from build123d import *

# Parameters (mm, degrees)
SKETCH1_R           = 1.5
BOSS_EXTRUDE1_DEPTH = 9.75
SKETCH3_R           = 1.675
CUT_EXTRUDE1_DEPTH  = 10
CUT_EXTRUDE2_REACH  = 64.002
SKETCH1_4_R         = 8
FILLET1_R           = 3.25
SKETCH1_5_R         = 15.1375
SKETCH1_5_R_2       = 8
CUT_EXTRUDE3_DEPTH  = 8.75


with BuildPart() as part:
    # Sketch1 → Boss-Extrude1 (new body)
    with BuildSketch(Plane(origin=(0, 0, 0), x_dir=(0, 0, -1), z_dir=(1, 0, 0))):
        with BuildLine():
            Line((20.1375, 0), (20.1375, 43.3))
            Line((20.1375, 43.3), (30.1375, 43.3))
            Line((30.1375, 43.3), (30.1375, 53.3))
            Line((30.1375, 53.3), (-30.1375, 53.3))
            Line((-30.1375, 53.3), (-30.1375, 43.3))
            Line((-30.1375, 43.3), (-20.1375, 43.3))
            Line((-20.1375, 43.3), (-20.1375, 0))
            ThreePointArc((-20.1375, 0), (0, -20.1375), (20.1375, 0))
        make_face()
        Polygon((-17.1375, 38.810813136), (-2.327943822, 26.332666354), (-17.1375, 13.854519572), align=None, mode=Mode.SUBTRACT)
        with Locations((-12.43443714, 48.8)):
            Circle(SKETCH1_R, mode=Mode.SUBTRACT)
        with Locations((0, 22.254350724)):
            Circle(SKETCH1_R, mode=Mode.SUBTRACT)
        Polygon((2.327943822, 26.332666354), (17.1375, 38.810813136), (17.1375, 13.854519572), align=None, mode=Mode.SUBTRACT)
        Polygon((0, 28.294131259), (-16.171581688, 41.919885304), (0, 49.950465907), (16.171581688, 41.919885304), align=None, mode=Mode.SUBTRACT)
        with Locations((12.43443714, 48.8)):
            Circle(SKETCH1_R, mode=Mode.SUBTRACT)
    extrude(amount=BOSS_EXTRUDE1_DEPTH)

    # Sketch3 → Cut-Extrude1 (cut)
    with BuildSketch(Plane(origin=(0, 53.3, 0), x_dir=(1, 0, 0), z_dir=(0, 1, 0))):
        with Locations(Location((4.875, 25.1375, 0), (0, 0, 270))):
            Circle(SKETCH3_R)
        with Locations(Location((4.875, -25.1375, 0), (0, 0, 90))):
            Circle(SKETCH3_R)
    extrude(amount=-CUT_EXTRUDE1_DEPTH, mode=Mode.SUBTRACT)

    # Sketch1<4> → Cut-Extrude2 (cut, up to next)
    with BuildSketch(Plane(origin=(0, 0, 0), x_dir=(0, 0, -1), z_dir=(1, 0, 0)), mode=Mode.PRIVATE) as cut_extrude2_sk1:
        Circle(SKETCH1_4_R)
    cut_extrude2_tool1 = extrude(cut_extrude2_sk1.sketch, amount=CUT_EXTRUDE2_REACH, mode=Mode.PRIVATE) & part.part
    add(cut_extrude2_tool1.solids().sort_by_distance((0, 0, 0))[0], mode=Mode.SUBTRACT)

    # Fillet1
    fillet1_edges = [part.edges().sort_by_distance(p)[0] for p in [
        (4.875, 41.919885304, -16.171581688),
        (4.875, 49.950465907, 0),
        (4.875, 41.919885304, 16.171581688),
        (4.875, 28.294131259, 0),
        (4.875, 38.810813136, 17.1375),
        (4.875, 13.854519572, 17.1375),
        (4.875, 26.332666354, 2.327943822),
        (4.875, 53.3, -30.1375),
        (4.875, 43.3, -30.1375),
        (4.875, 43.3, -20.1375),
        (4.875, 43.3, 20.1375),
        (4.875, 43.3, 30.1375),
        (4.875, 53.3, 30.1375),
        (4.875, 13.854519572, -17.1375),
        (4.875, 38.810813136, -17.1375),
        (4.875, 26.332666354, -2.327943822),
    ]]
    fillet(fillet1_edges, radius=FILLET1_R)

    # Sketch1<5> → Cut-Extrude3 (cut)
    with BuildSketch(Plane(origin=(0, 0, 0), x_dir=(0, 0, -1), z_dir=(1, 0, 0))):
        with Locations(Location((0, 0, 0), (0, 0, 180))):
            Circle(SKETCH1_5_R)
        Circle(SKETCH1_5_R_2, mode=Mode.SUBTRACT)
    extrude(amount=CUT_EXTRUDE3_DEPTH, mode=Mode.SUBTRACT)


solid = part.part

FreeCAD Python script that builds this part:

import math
import FreeCAD as App
import Part
import Sketcher
from FreeCAD import Vector
Q = App.Units.Quantity


def edges_at(feature, points):
    """Names of the edges that pass closest to the given points."""
    edges = feature.Shape.Edges
    near = lambda p: min(range(len(edges)), key=lambda i: edges[i].distToShape(Part.Vertex(*p))[0])
    return sorted({f"Edge{near(p) + 1}" for p in points})

doc = App.newDocument("Part")
params = doc.addObject("Spreadsheet::Sheet", "Params")
for row, (alias, value) in enumerate([
    ("sketch1_diameter", "3 mm"),
    ("sketch1_width", "10 mm"),
    ("sketch1_width2", "43.3 mm"),
    ("pad1_length", "9.75 mm"),
    ("sketch2_diameter", "3.35 mm"),
    ("pocket1_length", "10 mm"),
    ("sketch3_diameter", "16 mm"),
    ("fillet_radius", "3.25 mm"),
    ("sketch4_diameter", "16 mm"),
    ("pocket3_length", "8.75 mm"),
], start=1):
    params.set(f"A{row}", alias)
    params.set(f"B{row}", "=" + value)
    params.setAlias(f"B{row}", alias)

body = doc.addObject("PartDesign::Body", "Body")

# Sketch on YZ plane
sketch1 = doc.addObject("Sketcher::SketchObject", "Sketch")
body.addObject(sketch1)
sketch1.AttachmentSupport = (doc.YZ_Plane, [""])
sketch1.MapMode = "FlatFace"
sketch1.addGeometry(Part.LineSegment(Vector(0, -20.1, 0), Vector(43.3, -20.1, 0)), False)
sketch1.addGeometry(Part.LineSegment(Vector(43.3, -20.1, 0), Vector(43.3, -30.1, 0)), False)
sketch1.addGeometry(Part.LineSegment(Vector(43.3, -30.1, 0), Vector(53.3, -30.1, 0)), False)
sketch1.addGeometry(Part.LineSegment(Vector(53.3, -30.1, 0), Vector(53.3, 30.1, 0)), False)
sketch1.addGeometry(Part.LineSegment(Vector(53.3, 30.1, 0), Vector(43.3, 30.1, 0)), False)
sketch1.addGeometry(Part.LineSegment(Vector(43.3, 30.1, 0), Vector(43.3, 20.1, 0)), False)
sketch1.addGeometry(Part.LineSegment(Vector(43.3, 20.1, 0), Vector(0, 20.1, 0)), False)
sketch1.addGeometry(Part.ArcOfCircle(Part.Circle(Vector(0, 0, 0), Vector(0, 0, 1), 20.1), math.radians(90), math.radians(270)), False)
sketch1.addGeometry(Part.LineSegment(Vector(13.9, 17.1, 0), Vector(38.8, 17.1, 0)), False)
sketch1.addGeometry(Part.LineSegment(Vector(38.8, 17.1, 0), Vector(26.3, 2.3, 0)), False)
sketch1.addGeometry(Part.LineSegment(Vector(26.3, 2.3, 0), Vector(13.9, 17.1, 0)), False)
sketch1.addGeometry(Part.Circle(Vector(22.3, 0, 0), Vector(0, 0, 1), 1.5), False)
sketch1.addGeometry(Part.LineSegment(Vector(13.9, -17.1, 0), Vector(26.3, -2.3, 0)), False)
sketch1.addGeometry(Part.LineSegment(Vector(26.3, -2.3, 0), Vector(38.8, -17.1, 0)), False)
sketch1.addGeometry(Part.LineSegment(Vector(38.8, -17.1, 0), Vector(13.9, -17.1, 0)), False)
sketch1.addGeometry(Part.Circle(Vector(48.8, 12.4, 0), Vector(0, 0, 1), 1.5), False)
sketch1.addGeometry(Part.LineSegment(Vector(41.9, -16.2, 0), Vector(28.3, 0, 0)), False)
sketch1.addGeometry(Part.LineSegment(Vector(28.3, 0, 0), Vector(41.9, 16.2, 0)), False)
sketch1.addGeometry(Part.LineSegment(Vector(41.9, 16.2, 0), Vector(50, 0, 0)), False)
sketch1.addGeometry(Part.LineSegment(Vector(50, 0, 0), Vector(41.9, -16.2, 0)), False)
sketch1.addGeometry(Part.Circle(Vector(48.8, -12.4, 0), Vector(0, 0, 1), 1.5), False)
sketch1.addConstraint(Sketcher.Constraint("Coincident", 0, 2, 1, 1))
sketch1.addConstraint(Sketcher.Constraint("Coincident", 1, 2, 2, 1))
sketch1.addConstraint(Sketcher.Constraint("Coincident", 2, 2, 3, 1))
sketch1.addConstraint(Sketcher.Constraint("Coincident", 3, 2, 4, 1))
sketch1.addConstraint(Sketcher.Constraint("Coincident", 4, 2, 5, 1))
sketch1.addConstraint(Sketcher.Constraint("Coincident", 5, 2, 6, 1))
sketch1.addConstraint(Sketcher.Constraint("Tangent", 6, 2, 7, 1))
sketch1.addConstraint(Sketcher.Constraint("Tangent", 7, 2, 0, 1))
sketch1.addConstraint(Sketcher.Constraint("Coincident", 8, 2, 9, 1))
sketch1.addConstraint(Sketcher.Constraint("Coincident", 9, 2, 10, 1))
sketch1.addConstraint(Sketcher.Constraint("Coincident", 10, 2, 8, 1))
sketch1.addConstraint(Sketcher.Constraint("Coincident", 12, 2, 13, 1))
sketch1.addConstraint(Sketcher.Constraint("Coincident", 13, 2, 14, 1))
sketch1.addConstraint(Sketcher.Constraint("Coincident", 14, 2, 12, 1))
sketch1.addConstraint(Sketcher.Constraint("Coincident", 16, 2, 17, 1))
sketch1.addConstraint(Sketcher.Constraint("Coincident", 17, 2, 18, 1))
sketch1.addConstraint(Sketcher.Constraint("Coincident", 18, 2, 19, 1))
sketch1.addConstraint(Sketcher.Constraint("Coincident", 19, 2, 16, 1))
sketch1.addConstraint(Sketcher.Constraint("Horizontal", 0))
sketch1.addConstraint(Sketcher.Constraint("Vertical", 1))
sketch1.addConstraint(Sketcher.Constraint("Horizontal", 2))
sketch1.addConstraint(Sketcher.Constraint("Vertical", 3))
sketch1.addConstraint(Sketcher.Constraint("Horizontal", 4))
sketch1.addConstraint(Sketcher.Constraint("Vertical", 5))
sketch1.addConstraint(Sketcher.Constraint("Horizontal", 6))
sketch1.addConstraint(Sketcher.Constraint("Horizontal", 8))
sketch1.addConstraint(Sketcher.Constraint("Horizontal", 14))
sketch1.addConstraint(Sketcher.Constraint("Coincident", 7, 3, -1, 1))
sketch1.addConstraint(Sketcher.Constraint("Equal", 11, 15))
sketch1.addConstraint(Sketcher.Constraint("Equal", 15, 20))
sketch1.addConstraint(Sketcher.Constraint("Symmetric", 15, 3, 20, 3, -1))
sketch1.addConstraint(Sketcher.Constraint("Symmetric", 1, 2, 4, 2, -1))
sketch1.addConstraint(Sketcher.Constraint("Symmetric", 9, 2, 12, 2, -1))
sketch1.addConstraint(Sketcher.Constraint("Symmetric", 8, 2, 13, 2, -1))
sketch1.addConstraint(Sketcher.Constraint("Symmetric", 17, 2, 19, 2, -1))
sketch1.addConstraint(Sketcher.Constraint("PointOnObject", 11, 3, -1))
sketch1.addConstraint(Sketcher.Constraint("PointOnObject", 16, 2, -1))
sketch1.addConstraint(Sketcher.Constraint("PointOnObject", 18, 2, -1))
sketch1.addConstraint(Sketcher.Constraint("Parallel", 9, 12))
sketch1.addConstraint(Sketcher.Constraint("Parallel", 10, 13))
sketch1.addConstraint(Sketcher.Constraint("Parallel", 13, 16))
sketch1.addConstraint(Sketcher.Constraint("Equal", 4, 1))
sketch1.addConstraint(Sketcher.Constraint("Diameter", 11, Q("3 mm")))
sketch1.addConstraint(Sketcher.Constraint("DistanceX", 2, 1, 2, 2, Q("10 mm")))
sketch1.addConstraint(Sketcher.Constraint("DistanceX", 0, 1, 0, 2, Q("43.3 mm")))
sketch1.addConstraint(Sketcher.Constraint("DistanceY", 8, 2, 5, 2, Q("3 mm")))
sketch1.addConstraint(Sketcher.Constraint("DistanceX", -1, 1, 15, 3, Q("48.8 mm")))
sketch1.addConstraint(Sketcher.Constraint("Radius", 7, Q("20.1375 mm")))
sketch1.addConstraint(Sketcher.Constraint("Distance", 16, Q("21.14666 mm")))
sketch1.addConstraint(Sketcher.Constraint("DistanceX", 8, 1, 8, 2, Q("24.956294 mm")))
sketch1.addConstraint(Sketcher.Constraint("DistanceX", -1, 1, 11, 3, Q("22.254351 mm")))
sketch1.addConstraint(Sketcher.Constraint("DistanceX", -1, 1, 10, 2, Q("13.85452 mm")))
sketch1.addConstraint(Sketcher.Constraint("DistanceX", -1, 1, 16, 2, Q("28.294131 mm")))
sketch1.addConstraint(Sketcher.Constraint("DistanceY", -1, 1, 17, 2, Q("16.171582 mm")))
sketch1.addConstraint(Sketcher.Constraint("DistanceX", 17, 2, 18, 2, Q("8.030581 mm")))
sketch1.addConstraint(Sketcher.Constraint("DistanceY", -1, 1, 15, 3, Q("12.434437 mm")))
sketch1.setExpression("Constraints[42]", "Params.sketch1_diameter")
sketch1.setExpression("Constraints[43]", "Params.sketch1_width")
sketch1.setExpression("Constraints[44]", "Params.sketch1_width2")
pad1 = doc.addObject("PartDesign::Pad", "Pad")
body.addObject(pad1)
pad1.Profile = sketch1
pad1.setExpression("Length", "Params.pad1_length")

# Sketch on XZ plane
sketch2 = doc.addObject("Sketcher::SketchObject", "Sketch001")
body.addObject(sketch2)
sketch2.AttachmentSupport = (doc.XZ_Plane, [""])
sketch2.MapMode = "FlatFace"
sketch2.AttachmentOffset = App.Placement(Vector(0, 0, -53.3), App.Rotation())
sketch2.addGeometry(Part.Circle(Vector(4.9, -25.1, 0), Vector(0, 0, 1), 1.7), False)
sketch2.addGeometry(Part.Circle(Vector(4.9, 25.1, 0), Vector(0, 0, 1), 1.7), False)
sketch2.addConstraint(Sketcher.Constraint("Equal", 0, 1))
sketch2.addConstraint(Sketcher.Constraint("Symmetric", 0, 3, 1, 3, -1))
sketch2.addConstraint(Sketcher.Constraint("Diameter", 0, Q("3.35 mm")))
sketch2.addConstraint(Sketcher.Constraint("DistanceX", -1, 1, 0, 3, Q("4.875 mm")))
sketch2.addConstraint(Sketcher.Constraint("DistanceY", 0, 3, 1, 3, Q("50.275 mm")))
sketch2.setExpression("Constraints[2]", "Params.sketch2_diameter")
pocket1 = doc.addObject("PartDesign::Pocket", "Pocket")
body.addObject(pocket1)
pocket1.Profile = sketch2
pocket1.setExpression("Length", "Params.pocket1_length")
pocket1.Reversed = True

# Sketch on YZ plane
sketch3 = doc.addObject("Sketcher::SketchObject", "Sketch002")
body.addObject(sketch3)
sketch3.AttachmentSupport = (doc.YZ_Plane, [""])
sketch3.MapMode = "FlatFace"
sketch3.addGeometry(Part.Circle(Vector(0, 0, 0), Vector(0, 0, 1), 8), False)
sketch3.addConstraint(Sketcher.Constraint("Coincident", 0, 3, -1, 1))
sketch3.addConstraint(Sketcher.Constraint("Diameter", 0, Q("16 mm")))
sketch3.setExpression("Constraints[1]", "Params.sketch3_diameter")
pocket2 = doc.addObject("PartDesign::Pocket", "Pocket001")
body.addObject(pocket2)
pocket2.Profile = sketch3
pocket2.Type = "UpToFirst"
pocket2.Reversed = True
doc.recompute()

fillet = doc.addObject("PartDesign::Fillet", "Fillet")
body.addObject(fillet)
fillet.Base = (pocket2, edges_at(pocket2, [
    (4.875, 41.92, -16.172),
    (4.875, 49.95, 0),
    (4.875, 41.92, 16.172),
    (4.875, 28.294, 0),
    (4.875, 38.811, 17.137),
    (4.875, 13.855, 17.137),
    (4.875, 26.333, 2.328),
    (4.875, 53.3, -30.137),
    (4.875, 43.3, -30.137),
    (4.875, 43.3, -20.137),
    (4.875, 43.3, 20.137),
    (4.875, 43.3, 30.137),
    (4.875, 53.3, 30.137),
    (4.875, 13.855, -17.137),
    (4.875, 38.811, -17.137),
    (4.875, 26.333, -2.328),
]))
fillet.setExpression("Radius", "Params.fillet_radius")

# Sketch on YZ plane
sketch4 = doc.addObject("Sketcher::SketchObject", "Sketch003")
body.addObject(sketch4)
sketch4.AttachmentSupport = (doc.YZ_Plane, [""])
sketch4.MapMode = "FlatFace"
sketch4.addGeometry(Part.Circle(Vector(0, 0, 0), Vector(0, 0, 1), 15), False)
sketch4.addGeometry(Part.Circle(Vector(0, 0, 0), Vector(0, 0, 1), 8), False)
sketch4.addConstraint(Sketcher.Constraint("Coincident", 0, 3, -1, 1))
sketch4.addConstraint(Sketcher.Constraint("Coincident", 1, 3, -1, 1))
sketch4.addConstraint(Sketcher.Constraint("Diameter", 1, Q("16 mm")))
sketch4.addConstraint(Sketcher.Constraint("Diameter", 0, Q("30.275 mm")))
sketch4.setExpression("Constraints[2]", "Params.sketch4_diameter")
pocket3 = doc.addObject("PartDesign::Pocket", "Pocket002")
body.addObject(pocket3)
pocket3.Profile = sketch4
pocket3.setExpression("Length", "Params.pocket3_length")
pocket3.Reversed = True

doc.recompute()
